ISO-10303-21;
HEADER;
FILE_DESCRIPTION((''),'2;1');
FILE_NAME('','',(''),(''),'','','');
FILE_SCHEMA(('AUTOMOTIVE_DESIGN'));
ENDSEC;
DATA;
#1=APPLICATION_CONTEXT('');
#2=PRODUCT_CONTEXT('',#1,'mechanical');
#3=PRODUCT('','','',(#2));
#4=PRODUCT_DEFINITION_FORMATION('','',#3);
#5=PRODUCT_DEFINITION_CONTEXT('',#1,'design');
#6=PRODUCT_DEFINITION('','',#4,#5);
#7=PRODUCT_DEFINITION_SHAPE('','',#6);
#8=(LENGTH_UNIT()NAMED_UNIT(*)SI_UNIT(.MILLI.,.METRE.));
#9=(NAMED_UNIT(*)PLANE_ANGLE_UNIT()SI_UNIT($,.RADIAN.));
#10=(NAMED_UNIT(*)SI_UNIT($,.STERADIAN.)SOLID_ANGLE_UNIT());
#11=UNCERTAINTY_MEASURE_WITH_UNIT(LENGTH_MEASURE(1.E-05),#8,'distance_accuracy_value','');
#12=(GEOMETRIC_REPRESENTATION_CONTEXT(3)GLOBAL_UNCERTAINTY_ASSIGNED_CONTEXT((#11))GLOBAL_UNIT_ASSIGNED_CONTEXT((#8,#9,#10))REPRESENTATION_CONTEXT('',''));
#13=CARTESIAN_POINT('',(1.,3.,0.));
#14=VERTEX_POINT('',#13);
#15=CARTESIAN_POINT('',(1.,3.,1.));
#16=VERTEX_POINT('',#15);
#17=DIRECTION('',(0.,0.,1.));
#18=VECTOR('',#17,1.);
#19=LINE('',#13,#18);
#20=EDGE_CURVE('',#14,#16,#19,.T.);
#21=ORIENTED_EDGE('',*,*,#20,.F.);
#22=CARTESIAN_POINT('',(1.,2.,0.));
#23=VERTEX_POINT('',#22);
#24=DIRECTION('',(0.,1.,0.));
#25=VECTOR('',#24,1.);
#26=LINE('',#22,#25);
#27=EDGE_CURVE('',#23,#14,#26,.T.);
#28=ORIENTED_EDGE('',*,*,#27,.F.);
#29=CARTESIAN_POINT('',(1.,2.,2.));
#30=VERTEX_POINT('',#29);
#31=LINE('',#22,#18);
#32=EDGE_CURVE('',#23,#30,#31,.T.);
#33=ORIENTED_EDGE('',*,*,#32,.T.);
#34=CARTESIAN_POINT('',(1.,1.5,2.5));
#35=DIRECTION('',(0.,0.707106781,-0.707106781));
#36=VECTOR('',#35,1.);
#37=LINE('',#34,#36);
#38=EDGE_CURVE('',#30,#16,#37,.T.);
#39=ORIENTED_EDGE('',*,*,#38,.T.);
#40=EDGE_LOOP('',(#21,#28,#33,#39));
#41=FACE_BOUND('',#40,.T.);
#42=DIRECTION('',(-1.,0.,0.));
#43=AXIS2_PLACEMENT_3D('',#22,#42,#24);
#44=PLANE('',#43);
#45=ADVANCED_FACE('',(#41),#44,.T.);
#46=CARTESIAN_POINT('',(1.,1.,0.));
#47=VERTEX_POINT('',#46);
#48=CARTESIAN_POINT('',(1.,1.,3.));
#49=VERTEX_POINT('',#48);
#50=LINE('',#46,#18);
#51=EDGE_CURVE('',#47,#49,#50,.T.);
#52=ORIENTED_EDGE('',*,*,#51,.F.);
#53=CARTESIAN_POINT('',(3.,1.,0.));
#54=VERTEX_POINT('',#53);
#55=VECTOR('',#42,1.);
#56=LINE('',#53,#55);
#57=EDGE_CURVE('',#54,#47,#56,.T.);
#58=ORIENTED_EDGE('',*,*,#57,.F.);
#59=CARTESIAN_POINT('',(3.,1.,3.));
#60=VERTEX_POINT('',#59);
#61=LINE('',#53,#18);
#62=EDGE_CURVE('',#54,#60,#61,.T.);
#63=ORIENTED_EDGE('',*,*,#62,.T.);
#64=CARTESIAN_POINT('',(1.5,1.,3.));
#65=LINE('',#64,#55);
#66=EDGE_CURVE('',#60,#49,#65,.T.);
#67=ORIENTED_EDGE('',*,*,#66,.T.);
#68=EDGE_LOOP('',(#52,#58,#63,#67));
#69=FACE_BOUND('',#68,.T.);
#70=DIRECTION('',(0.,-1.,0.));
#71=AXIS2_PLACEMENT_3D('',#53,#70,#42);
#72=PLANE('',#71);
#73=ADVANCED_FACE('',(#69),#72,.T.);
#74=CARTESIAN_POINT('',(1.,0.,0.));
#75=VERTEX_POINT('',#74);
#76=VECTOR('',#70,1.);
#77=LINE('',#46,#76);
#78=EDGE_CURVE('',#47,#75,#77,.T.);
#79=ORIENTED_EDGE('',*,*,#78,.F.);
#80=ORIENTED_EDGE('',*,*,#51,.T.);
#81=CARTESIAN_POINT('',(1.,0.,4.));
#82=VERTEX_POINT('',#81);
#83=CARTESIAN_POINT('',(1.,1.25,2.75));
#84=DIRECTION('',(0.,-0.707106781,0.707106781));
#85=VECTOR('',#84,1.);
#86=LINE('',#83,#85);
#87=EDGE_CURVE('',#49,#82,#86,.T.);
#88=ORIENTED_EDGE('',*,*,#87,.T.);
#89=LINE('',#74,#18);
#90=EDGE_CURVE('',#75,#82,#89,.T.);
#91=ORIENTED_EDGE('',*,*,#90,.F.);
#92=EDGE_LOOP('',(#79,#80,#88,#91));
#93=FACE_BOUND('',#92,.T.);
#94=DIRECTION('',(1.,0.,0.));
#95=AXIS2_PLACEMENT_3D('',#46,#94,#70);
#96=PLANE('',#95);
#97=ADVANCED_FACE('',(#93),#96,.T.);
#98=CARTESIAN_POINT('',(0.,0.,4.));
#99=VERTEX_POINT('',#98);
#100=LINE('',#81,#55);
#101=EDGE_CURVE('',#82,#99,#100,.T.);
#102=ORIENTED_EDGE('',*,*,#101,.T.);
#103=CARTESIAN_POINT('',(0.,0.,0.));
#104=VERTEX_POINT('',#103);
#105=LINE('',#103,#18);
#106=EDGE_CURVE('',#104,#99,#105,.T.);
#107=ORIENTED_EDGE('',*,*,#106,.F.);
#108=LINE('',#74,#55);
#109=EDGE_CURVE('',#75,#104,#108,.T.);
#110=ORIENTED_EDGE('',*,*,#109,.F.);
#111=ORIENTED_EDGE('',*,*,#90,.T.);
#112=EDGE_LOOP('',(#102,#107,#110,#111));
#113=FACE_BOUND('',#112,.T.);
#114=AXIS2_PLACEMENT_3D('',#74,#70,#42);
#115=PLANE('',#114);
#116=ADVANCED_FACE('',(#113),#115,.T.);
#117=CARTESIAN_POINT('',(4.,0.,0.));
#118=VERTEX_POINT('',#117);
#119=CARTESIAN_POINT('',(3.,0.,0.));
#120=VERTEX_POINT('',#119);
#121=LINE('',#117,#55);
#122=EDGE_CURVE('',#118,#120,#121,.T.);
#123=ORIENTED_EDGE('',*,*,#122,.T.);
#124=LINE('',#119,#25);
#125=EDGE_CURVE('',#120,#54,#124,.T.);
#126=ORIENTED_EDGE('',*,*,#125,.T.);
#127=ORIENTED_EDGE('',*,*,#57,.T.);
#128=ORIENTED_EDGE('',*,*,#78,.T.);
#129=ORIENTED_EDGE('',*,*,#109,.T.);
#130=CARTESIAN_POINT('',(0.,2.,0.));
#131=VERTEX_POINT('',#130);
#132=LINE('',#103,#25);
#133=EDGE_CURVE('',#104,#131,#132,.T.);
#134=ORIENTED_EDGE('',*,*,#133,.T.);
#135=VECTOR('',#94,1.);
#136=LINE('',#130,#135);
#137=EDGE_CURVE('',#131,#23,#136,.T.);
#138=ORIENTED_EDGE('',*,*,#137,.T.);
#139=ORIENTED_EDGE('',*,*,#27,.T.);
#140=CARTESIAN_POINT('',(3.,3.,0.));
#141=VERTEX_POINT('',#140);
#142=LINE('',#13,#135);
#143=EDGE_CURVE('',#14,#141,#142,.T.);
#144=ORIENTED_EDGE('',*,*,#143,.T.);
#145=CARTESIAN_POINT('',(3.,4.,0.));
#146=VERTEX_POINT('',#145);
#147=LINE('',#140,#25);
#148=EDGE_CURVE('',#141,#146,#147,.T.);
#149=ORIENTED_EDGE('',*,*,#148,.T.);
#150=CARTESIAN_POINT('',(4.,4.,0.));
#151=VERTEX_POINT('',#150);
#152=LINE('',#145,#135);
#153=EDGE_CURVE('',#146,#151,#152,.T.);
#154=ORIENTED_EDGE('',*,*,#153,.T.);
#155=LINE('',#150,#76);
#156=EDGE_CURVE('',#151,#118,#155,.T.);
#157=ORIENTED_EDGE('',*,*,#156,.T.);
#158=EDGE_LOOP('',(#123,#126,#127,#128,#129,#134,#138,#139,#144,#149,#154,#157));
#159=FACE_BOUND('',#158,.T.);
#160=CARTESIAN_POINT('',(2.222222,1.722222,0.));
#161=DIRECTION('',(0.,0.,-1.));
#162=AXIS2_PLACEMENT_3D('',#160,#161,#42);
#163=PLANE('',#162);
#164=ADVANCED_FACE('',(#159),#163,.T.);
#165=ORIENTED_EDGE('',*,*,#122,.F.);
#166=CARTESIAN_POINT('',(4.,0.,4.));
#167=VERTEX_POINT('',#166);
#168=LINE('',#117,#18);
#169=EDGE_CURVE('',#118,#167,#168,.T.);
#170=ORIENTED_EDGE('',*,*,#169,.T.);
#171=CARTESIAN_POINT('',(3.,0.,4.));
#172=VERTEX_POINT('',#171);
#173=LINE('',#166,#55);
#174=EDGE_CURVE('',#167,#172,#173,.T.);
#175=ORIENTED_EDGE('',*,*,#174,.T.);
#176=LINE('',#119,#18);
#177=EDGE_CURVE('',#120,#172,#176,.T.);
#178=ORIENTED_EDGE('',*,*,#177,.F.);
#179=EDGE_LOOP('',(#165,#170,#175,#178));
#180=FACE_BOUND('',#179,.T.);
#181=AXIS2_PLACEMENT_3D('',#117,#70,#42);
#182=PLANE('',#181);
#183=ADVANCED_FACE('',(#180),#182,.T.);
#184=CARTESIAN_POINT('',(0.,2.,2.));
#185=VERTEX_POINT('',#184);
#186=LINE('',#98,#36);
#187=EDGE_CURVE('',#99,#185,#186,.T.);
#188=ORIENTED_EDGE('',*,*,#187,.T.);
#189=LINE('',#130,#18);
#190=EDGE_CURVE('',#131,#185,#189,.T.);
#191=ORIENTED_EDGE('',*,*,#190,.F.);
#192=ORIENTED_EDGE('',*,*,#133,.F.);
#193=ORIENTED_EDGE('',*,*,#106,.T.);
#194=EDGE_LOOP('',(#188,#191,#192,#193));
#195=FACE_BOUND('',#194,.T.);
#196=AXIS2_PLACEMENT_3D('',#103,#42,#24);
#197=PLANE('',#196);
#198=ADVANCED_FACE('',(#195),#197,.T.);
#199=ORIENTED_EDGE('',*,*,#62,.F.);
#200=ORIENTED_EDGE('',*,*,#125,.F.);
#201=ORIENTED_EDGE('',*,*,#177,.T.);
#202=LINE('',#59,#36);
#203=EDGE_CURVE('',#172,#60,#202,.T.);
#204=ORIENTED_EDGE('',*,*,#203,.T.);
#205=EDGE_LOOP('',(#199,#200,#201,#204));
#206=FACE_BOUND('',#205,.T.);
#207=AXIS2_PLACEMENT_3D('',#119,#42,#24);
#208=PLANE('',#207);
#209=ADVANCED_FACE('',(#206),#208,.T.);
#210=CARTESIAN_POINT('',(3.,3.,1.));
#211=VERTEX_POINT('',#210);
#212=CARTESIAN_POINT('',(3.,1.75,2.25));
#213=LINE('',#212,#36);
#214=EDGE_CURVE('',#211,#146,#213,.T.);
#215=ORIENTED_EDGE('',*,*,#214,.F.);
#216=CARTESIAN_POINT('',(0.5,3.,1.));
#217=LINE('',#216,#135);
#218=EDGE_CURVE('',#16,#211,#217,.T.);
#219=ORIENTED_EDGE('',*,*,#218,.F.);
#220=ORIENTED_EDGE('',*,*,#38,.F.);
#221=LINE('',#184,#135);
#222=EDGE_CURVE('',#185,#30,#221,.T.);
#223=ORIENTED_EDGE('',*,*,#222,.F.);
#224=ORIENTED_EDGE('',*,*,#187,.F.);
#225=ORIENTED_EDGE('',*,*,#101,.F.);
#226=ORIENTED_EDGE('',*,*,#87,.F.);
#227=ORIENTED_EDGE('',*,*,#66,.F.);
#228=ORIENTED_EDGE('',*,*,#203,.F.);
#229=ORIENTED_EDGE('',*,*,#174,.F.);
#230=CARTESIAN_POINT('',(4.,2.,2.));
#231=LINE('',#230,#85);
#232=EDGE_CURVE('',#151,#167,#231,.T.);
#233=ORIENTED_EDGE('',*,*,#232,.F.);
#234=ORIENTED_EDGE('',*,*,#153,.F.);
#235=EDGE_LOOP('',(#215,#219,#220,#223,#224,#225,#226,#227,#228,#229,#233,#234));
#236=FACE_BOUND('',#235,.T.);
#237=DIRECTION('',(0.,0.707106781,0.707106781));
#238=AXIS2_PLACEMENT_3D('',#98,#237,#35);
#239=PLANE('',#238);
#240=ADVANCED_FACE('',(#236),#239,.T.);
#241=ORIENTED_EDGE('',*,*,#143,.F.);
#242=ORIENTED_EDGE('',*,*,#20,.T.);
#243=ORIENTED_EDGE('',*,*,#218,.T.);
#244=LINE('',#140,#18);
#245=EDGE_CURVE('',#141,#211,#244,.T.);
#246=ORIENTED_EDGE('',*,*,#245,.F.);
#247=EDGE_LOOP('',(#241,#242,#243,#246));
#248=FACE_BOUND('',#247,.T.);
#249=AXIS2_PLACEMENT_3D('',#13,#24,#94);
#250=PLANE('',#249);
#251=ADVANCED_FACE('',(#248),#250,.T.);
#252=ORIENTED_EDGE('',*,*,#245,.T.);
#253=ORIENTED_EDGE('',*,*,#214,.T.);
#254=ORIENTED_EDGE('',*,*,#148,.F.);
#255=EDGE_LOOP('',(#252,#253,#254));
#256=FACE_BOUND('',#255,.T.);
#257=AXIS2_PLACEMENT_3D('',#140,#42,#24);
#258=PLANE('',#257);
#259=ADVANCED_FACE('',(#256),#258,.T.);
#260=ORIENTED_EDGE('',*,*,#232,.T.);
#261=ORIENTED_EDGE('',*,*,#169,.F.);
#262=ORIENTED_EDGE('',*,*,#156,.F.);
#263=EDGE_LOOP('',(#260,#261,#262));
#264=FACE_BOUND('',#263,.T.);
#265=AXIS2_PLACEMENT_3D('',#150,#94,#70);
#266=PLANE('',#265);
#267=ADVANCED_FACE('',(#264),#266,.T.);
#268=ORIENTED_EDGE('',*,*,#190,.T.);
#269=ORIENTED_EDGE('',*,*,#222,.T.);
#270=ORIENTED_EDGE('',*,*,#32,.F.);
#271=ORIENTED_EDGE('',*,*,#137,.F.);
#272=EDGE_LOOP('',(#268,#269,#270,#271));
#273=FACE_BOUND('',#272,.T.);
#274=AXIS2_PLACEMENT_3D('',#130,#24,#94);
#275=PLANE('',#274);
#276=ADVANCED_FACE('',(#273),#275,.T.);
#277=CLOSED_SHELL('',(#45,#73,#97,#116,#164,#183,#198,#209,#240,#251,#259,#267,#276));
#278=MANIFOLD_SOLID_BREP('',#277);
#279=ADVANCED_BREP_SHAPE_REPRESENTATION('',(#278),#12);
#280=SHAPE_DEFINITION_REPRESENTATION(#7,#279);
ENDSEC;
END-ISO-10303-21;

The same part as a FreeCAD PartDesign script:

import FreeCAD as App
import Part
import Sketcher

doc = App.newDocument("Part")
body = doc.addObject("PartDesign::Body", "Body")

# Sketch on XY plane
sketch1 = body.newObject("Sketcher::SketchObject", "Sketch")
sketch1.AttachmentSupport = (doc.getObject("XY_Plane"), [""])
sketch1.MapMode = "FlatFace"
sketch1.addGeometry([
    Part.LineSegment(App.Vector(0, 2, 0), App.Vector(0, 0, 0)),  # 0
    Part.LineSegment(App.Vector(0, 0, 0), App.Vector(1, 0, 0)),  # 1
    Part.LineSegment(App.Vector(1, 0, 0), App.Vector(1, 1, 0)),  # 2
    Part.LineSegment(App.Vector(1, 1, 0), App.Vector(3, 1, 0)),  # 3
    Part.LineSegment(App.Vector(3, 1, 0), App.Vector(3, 0, 0)),  # 4
    Part.LineSegment(App.Vector(3, 0, 0), App.Vector(4, 0, 0)),  # 5
    Part.LineSegment(App.Vector(4, 0, 0), App.Vector(4, 4, 0)),  # 6
    Part.LineSegment(App.Vector(4, 4, 0), App.Vector(3, 4, 0)),  # 7
    Part.LineSegment(App.Vector(3, 4, 0), App.Vector(3, 3, 0)),  # 8
    Part.LineSegment(App.Vector(3, 3, 0), App.Vector(1, 3, 0)),  # 9
    Part.LineSegment(App.Vector(1, 3, 0), App.Vector(1, 2, 0)),  # 10
    Part.LineSegment(App.Vector(1, 2, 0), App.Vector(0, 2, 0)),  # 11
], False)
sketch1.addConstraint([
    Sketcher.Constraint("Coincident", 0, 2, 1, 1),
    Sketcher.Constraint("Coincident", 1, 2, 2, 1),
    Sketcher.Constraint("Coincident", 2, 2, 3, 1),
    Sketcher.Constraint("Coincident", 3, 2, 4, 1),
    Sketcher.Constraint("Coincident", 4, 2, 5, 1),
    Sketcher.Constraint("Coincident", 5, 2, 6, 1),
    Sketcher.Constraint("Coincident", 6, 2, 7, 1),
    Sketcher.Constraint("Coincident", 7, 2, 8, 1),
    Sketcher.Constraint("Coincident", 8, 2, 9, 1),
    Sketcher.Constraint("Coincident", 9, 2, 10, 1),
    Sketcher.Constraint("Coincident", 10, 2, 11, 1),
    Sketcher.Constraint("Coincident", 11, 2, 0, 1),
    Sketcher.Constraint("Vertical", 0),
    Sketcher.Constraint("Horizontal", 1),
    Sketcher.Constraint("Vertical", 2),
    Sketcher.Constraint("Horizontal", 3),
    Sketcher.Constraint("Vertical", 4),
    Sketcher.Constraint("Horizontal", 5),
    Sketcher.Constraint("Vertical", 6),
    Sketcher.Constraint("Horizontal", 7),
    Sketcher.Constraint("Vertical", 8),
    Sketcher.Constraint("Horizontal", 9),
    Sketcher.Constraint("Vertical", 10),
    Sketcher.Constraint("Horizontal", 11),
    Sketcher.Constraint("Coincident", 0, 2, -1, 1),
    Sketcher.Constraint("PointOnObject", 4, 2, -1),
    Sketcher.Constraint("Vertical", 4, 2, 7, 2),
    Sketcher.Constraint("Vertical", 2, 2, 9, 2),
    Sketcher.Constraint("Equal", 1, 5),
    Sketcher.Constraint("Equal", 9, 0),
    Sketcher.Constraint("Equal", 11, 2),
    Sketcher.Constraint("Equal", 4, 8),
    Sketcher.Constraint("Equal", 8, 10),
    Sketcher.Constraint("DistanceX", 1, 1, 1, 2, 1.0),
    Sketcher.Constraint("DistanceX", 3, 1, 3, 2, 2.0),
])
pad1 = body.newObject("PartDesign::Pad", "Pad")
pad1.Profile = sketch1
pad1.Length = 4

# Sketch on YZ plane
sketch2 = body.newObject("Sketcher::SketchObject", "Sketch001")
sketch2.AttachmentSupport = (doc.getObject("YZ_Plane"), [""])
sketch2.MapMode = "FlatFace"
sketch2.addGeometry([
    Part.LineSegment(App.Vector(4, 0, 0), App.Vector(0, 4, 0)),
    Part.LineSegment(App.Vector(0, 4, 0), App.Vector(4, 4, 0)),
    Part.LineSegment(App.Vector(4, 4, 0), App.Vector(4, 0, 0)),
], False)
sketch2.addConstraint([
    Sketcher.Constraint("Coincident", 0, 2, 1, 1),
    Sketcher.Constraint("Coincident", 1, 2, 2, 1),
    Sketcher.Constraint("Coincident", 2, 2, 0, 1),
    Sketcher.Constraint("Horizontal", 1),
    Sketcher.Constraint("Vertical", 2),
    Sketcher.Constraint("PointOnObject", 0, 2, -2),
    Sketcher.Constraint("PointOnObject", 2, 2, -1),
    Sketcher.Constraint("Equal", 1, 2),
    Sketcher.Constraint("DistanceX", 1, 1, 1, 2, 4.0),
])
pocket1 = body.newObject("PartDesign::Pocket", "Pocket")
pocket1.Profile = sketch2
pocket1.Length = 10
pocket1.Reversed = True

doc.recompute()
